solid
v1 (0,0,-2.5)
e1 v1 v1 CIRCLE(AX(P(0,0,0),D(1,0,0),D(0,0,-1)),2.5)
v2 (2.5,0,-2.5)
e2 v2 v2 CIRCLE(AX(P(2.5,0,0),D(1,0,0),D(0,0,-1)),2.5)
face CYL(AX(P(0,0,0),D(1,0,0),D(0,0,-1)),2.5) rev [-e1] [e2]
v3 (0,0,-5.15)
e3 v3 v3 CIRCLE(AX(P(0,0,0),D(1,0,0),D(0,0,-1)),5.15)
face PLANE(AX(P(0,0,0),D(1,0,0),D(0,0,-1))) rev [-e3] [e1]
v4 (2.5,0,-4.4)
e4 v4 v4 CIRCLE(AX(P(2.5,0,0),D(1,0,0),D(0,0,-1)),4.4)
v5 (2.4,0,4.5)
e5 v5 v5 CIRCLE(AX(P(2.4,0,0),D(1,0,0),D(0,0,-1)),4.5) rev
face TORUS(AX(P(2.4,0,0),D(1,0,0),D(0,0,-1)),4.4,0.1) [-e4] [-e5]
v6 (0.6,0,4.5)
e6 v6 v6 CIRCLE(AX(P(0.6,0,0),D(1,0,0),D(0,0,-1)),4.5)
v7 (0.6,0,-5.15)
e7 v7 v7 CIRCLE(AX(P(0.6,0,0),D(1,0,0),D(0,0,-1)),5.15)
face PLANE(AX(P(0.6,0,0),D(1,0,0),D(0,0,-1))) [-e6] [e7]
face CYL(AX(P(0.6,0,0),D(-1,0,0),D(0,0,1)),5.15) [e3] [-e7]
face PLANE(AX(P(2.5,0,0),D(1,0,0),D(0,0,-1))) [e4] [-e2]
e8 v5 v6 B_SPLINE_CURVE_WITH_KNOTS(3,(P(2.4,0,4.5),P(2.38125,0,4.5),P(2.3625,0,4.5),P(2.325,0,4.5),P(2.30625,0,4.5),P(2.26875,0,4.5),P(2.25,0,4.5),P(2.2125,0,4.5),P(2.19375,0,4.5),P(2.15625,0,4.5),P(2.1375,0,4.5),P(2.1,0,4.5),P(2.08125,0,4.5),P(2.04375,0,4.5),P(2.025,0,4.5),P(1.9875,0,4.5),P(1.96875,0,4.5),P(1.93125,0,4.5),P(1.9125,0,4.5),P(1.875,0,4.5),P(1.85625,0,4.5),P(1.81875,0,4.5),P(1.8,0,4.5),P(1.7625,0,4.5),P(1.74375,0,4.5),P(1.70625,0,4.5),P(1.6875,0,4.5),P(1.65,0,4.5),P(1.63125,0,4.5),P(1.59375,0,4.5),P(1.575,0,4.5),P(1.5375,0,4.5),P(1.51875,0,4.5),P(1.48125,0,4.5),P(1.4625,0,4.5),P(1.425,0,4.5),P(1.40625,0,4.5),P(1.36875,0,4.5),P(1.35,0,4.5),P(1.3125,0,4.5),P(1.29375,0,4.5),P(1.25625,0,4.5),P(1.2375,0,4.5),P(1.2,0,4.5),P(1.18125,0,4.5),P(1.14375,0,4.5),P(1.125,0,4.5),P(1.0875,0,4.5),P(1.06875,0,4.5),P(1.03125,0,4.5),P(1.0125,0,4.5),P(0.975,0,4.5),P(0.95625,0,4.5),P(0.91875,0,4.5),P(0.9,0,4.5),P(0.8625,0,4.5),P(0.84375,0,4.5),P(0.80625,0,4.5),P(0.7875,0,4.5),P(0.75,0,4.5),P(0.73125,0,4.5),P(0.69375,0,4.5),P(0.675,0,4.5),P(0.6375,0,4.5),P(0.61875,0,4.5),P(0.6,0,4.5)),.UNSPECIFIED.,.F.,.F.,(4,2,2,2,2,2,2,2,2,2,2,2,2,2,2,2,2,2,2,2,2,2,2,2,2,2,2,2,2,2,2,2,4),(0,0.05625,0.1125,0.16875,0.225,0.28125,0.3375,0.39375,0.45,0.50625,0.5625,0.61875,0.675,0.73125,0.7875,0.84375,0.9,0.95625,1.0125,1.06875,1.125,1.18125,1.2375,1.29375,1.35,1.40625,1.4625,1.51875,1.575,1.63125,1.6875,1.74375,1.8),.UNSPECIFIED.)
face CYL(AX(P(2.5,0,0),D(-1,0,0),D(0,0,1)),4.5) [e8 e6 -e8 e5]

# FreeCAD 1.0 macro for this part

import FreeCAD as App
import Part
import Sketcher
from FreeCAD import Vector
Q = App.Units.Quantity


def edges_at(feature, points):
    """Names of the edges that pass closest to the given points."""
    edges = feature.Shape.Edges
    near = lambda p: min(range(len(edges)), key=lambda i: edges[i].distToShape(Part.Vertex(*p))[0])
    return sorted({f"Edge{near(p) + 1}" for p in points})

doc = App.newDocument("Part")
params = doc.addObject("Spreadsheet::Sheet", "Params")
for row, (alias, value) in enumerate([
    ("sketch1_diameter", "10.3 mm"),
    ("pad1_length", "0.6 mm"),
    ("sketch2_diameter", "9 mm"),
    ("pad2_length", "1.9 mm"),
    ("sketch3_diameter", "5 mm"),
    ("fillet_radius", "0.1 mm"),
], start=1):
    params.set(f"A{row}", alias)
    params.set(f"B{row}", "=" + value)
    params.setAlias(f"B{row}", alias)

body = doc.addObject("PartDesign::Body", "Body")

sketch1 = doc.addObject("Sketcher::SketchObject", "Sketch")
body.addObject(sketch1)
sketch1.AttachmentSupport = (doc.YZ_Plane, [""])
sketch1.MapMode = "FlatFace"
sketch1.addGeometry(Part.Circle(Vector(0, 0, 0), Vector(0, 0, 1), 5), False)
sketch1.addConstraint([
    Sketcher.Constraint("Coincident", 0, 3, -1, 1),
    Sketcher.Constraint("Diameter", 0, Q("10.3 mm")),
])
sketch1.setExpression("Constraints[1]", "Params.sketch1_diameter")
pad1 = doc.addObject("PartDesign::Pad", "Pad")
body.addObject(pad1)
pad1.Profile = sketch1
pad1.setExpression("Length", "Params.pad1_length")

sketch2 = doc.addObject("Sketcher::SketchObject", "Sketch001")
body.addObject(sketch2)
sketch2.AttachmentSupport = (doc.YZ_Plane, [""])
sketch2.MapMode = "FlatFace"
sketch2.AttachmentOffset = App.Placement(Vector(0, 0, 0.6), App.Rotation())
sketch2.addGeometry(Part.Circle(Vector(0, 0, 0), Vector(0, 0, 1), 4.5), False)
sketch2.addConstraint([
    Sketcher.Constraint("Coincident", 0, 3, -1, 1),
    Sketcher.Constraint("Diameter", 0, Q("9 mm")),
])
sketch2.setExpression("Constraints[1]", "Params.sketch2_diameter")
pad2 = doc.addObject("PartDesign::Pad", "Pad001")
body.addObject(pad2)
pad2.Profile = sketch2
pad2.setExpression("Length", "Params.pad2_length")

sketch3 = doc.addObject("Sketcher::SketchObject", "Sketch002")
body.addObject(sketch3)
sketch3.AttachmentSupport = (doc.YZ_Plane, [""])
sketch3.MapMode = "FlatFace"
sketch3.AttachmentOffset = App.Placement(Vector(0, 0, 2.5), App.Rotation())
sketch3.addGeometry(Part.Circle(Vector(0, 0, 0), Vector(0, 0, 1), 2.5), False)
sketch3.addConstraint([
    Sketcher.Constraint("Coincident", 0, 3, -1, 1),
    Sketcher.Constraint("Diameter", 0, Q("5 mm")),
])
sketch3.setExpression("Constraints[1]", "Params.sketch3_diameter")
pocket1 = doc.addObject("PartDesign::Pocket", "Pocket")
body.addObject(pocket1)
pocket1.Profile = sketch3
pocket1.Type = "ThroughAll"
doc.recompute()

fillet = doc.addObject("PartDesign::Fillet", "Fillet")
body.addObject(fillet)
fillet.Base = (pocket1, edges_at(pocket1, [(2.5, 0, -4.5)]))
fillet.setExpression("Radius", "Params.fillet_radius")

doc.recompute()
